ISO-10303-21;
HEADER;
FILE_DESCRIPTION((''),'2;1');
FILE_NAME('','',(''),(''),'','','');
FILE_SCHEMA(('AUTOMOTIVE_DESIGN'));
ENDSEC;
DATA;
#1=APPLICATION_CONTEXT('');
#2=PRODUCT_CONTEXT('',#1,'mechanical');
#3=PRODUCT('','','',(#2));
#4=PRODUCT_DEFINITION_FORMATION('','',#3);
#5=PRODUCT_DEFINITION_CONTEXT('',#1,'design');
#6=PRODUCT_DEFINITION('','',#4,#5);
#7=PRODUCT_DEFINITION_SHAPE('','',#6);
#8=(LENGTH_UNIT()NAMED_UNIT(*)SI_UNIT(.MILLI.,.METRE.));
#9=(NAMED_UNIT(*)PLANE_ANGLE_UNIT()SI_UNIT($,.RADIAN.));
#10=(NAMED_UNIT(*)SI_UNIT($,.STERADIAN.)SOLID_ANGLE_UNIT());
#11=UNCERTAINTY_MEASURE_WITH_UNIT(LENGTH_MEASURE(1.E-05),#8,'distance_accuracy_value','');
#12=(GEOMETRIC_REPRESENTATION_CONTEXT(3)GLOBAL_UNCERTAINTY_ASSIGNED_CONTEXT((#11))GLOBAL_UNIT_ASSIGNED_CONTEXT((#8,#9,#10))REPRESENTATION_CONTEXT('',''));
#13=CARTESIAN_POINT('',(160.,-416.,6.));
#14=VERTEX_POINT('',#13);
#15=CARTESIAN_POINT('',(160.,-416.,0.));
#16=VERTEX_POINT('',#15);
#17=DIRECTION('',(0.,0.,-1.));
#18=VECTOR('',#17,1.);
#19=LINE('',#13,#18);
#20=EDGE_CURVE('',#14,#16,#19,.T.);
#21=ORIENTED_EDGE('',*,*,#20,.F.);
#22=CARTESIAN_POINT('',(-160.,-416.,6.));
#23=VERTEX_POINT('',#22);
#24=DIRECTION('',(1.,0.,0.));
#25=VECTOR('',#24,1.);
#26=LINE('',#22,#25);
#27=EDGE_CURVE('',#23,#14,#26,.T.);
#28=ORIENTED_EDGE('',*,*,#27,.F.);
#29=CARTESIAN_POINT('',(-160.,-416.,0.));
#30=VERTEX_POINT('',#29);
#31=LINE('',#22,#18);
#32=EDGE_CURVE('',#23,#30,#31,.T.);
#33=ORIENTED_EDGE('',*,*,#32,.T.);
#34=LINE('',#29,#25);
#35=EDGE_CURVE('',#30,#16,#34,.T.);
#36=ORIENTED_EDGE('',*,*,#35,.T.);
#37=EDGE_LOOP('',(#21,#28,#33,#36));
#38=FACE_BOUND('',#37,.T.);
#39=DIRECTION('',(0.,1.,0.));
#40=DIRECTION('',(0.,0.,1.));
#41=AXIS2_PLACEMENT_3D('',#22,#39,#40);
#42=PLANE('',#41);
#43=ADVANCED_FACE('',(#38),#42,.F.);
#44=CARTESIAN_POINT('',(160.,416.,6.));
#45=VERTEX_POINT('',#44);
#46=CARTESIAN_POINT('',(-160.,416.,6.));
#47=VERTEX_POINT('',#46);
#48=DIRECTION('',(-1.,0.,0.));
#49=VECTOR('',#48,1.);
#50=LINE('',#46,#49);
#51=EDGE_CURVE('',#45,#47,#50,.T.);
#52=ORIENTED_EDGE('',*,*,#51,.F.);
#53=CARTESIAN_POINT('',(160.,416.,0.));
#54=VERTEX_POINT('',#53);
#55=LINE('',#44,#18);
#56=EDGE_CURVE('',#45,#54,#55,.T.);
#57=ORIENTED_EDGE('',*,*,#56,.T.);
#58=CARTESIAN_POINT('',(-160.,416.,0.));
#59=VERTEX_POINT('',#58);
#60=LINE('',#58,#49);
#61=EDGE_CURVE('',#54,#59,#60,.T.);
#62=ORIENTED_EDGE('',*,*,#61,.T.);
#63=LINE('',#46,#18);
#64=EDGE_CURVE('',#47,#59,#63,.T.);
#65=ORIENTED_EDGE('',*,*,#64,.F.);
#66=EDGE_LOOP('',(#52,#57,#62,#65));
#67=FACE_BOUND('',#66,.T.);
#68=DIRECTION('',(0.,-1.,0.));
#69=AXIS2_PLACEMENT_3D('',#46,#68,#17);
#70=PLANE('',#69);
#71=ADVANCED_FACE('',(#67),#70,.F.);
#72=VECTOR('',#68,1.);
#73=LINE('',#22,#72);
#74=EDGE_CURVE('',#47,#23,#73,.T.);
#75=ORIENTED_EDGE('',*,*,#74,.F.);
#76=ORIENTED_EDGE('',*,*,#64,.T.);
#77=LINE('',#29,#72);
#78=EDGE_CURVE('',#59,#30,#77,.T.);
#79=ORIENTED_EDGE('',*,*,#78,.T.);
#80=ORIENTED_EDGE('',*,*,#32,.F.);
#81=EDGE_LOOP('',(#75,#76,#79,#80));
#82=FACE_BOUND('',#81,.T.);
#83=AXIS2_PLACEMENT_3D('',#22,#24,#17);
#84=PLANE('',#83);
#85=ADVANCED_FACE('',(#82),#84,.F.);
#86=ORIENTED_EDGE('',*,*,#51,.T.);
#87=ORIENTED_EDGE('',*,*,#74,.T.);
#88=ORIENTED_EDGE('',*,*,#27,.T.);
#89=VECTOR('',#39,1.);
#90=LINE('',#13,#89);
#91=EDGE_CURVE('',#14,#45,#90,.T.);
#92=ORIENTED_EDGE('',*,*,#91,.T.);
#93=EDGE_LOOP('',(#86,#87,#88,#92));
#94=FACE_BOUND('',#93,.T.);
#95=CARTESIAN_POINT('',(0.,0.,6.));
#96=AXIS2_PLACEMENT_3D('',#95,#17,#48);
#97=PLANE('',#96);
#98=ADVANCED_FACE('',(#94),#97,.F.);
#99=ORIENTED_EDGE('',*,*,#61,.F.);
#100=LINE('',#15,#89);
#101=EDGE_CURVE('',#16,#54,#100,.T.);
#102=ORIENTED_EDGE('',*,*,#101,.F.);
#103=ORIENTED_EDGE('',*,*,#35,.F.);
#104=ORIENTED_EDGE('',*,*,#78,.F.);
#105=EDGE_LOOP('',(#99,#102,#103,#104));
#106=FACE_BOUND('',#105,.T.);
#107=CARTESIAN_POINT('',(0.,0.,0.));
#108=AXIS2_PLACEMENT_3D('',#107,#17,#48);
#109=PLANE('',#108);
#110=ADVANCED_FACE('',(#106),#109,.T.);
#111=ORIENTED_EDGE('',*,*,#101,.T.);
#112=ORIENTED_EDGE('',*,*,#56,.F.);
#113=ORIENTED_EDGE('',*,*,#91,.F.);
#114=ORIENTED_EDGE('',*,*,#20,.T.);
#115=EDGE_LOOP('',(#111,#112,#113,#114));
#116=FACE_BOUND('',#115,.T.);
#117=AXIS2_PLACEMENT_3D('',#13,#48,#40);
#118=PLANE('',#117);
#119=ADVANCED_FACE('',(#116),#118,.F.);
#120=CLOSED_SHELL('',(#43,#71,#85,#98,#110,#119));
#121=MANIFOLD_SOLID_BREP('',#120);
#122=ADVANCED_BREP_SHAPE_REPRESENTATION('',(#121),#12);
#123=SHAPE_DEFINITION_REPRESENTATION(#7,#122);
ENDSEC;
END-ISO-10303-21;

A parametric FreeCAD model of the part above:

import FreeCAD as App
import Part
import Sketcher

V = App.Vector
Q = App.Units.Quantity


def add_polygon(sketch, points):
    """Adds a closed chain of lines whose ends are joined by coincident constraints."""
    first, n = sketch.GeometryCount, len(points)
    for a, b in zip(points, points[1:] + points[:1]):
        sketch.addGeometry(Part.LineSegment(App.Vector(*a, 0), App.Vector(*b, 0)), False)
    for i in range(n):
        sketch.addConstraint(Sketcher.Constraint("Coincident", first + i, 2, first + (i + 1) % n, 1))

doc = App.newDocument("Part")
body = doc.addObject("PartDesign::Body", "Body")

sketch1 = doc.addObject("Sketcher::SketchObject", "Sketch")
body.addObject(sketch1)
sketch1.AttachmentSupport = (doc.XY_Plane, [""])
sketch1.MapMode = "FlatFace"
add_polygon(sketch1, [(-160, 416), (-160, -416), (160, -416), (160, 416)])
sketch1.addConstraint(Sketcher.Constraint("Vertical", 0))
sketch1.addConstraint(Sketcher.Constraint("Horizontal", 1))
sketch1.addConstraint(Sketcher.Constraint("Vertical", 2))
sketch1.addConstraint(Sketcher.Constraint("Horizontal", 3))
sketch1.addConstraint(Sketcher.Constraint("Symmetric", 0, 2, 2, 2, -1, 1))
sketch1.addConstraint(Sketcher.Constraint("DistanceX", 1, 1, 1, 2, Q("320 mm")))
sketch1.addConstraint(Sketcher.Constraint("DistanceY", 0, 2, 0, 1, Q("832 mm")))
pad1 = doc.addObject("PartDesign::Pad", "Pad")
body.addObject(pad1)
pad1.Profile = sketch1
pad1.Length = 6

doc.recompute()
